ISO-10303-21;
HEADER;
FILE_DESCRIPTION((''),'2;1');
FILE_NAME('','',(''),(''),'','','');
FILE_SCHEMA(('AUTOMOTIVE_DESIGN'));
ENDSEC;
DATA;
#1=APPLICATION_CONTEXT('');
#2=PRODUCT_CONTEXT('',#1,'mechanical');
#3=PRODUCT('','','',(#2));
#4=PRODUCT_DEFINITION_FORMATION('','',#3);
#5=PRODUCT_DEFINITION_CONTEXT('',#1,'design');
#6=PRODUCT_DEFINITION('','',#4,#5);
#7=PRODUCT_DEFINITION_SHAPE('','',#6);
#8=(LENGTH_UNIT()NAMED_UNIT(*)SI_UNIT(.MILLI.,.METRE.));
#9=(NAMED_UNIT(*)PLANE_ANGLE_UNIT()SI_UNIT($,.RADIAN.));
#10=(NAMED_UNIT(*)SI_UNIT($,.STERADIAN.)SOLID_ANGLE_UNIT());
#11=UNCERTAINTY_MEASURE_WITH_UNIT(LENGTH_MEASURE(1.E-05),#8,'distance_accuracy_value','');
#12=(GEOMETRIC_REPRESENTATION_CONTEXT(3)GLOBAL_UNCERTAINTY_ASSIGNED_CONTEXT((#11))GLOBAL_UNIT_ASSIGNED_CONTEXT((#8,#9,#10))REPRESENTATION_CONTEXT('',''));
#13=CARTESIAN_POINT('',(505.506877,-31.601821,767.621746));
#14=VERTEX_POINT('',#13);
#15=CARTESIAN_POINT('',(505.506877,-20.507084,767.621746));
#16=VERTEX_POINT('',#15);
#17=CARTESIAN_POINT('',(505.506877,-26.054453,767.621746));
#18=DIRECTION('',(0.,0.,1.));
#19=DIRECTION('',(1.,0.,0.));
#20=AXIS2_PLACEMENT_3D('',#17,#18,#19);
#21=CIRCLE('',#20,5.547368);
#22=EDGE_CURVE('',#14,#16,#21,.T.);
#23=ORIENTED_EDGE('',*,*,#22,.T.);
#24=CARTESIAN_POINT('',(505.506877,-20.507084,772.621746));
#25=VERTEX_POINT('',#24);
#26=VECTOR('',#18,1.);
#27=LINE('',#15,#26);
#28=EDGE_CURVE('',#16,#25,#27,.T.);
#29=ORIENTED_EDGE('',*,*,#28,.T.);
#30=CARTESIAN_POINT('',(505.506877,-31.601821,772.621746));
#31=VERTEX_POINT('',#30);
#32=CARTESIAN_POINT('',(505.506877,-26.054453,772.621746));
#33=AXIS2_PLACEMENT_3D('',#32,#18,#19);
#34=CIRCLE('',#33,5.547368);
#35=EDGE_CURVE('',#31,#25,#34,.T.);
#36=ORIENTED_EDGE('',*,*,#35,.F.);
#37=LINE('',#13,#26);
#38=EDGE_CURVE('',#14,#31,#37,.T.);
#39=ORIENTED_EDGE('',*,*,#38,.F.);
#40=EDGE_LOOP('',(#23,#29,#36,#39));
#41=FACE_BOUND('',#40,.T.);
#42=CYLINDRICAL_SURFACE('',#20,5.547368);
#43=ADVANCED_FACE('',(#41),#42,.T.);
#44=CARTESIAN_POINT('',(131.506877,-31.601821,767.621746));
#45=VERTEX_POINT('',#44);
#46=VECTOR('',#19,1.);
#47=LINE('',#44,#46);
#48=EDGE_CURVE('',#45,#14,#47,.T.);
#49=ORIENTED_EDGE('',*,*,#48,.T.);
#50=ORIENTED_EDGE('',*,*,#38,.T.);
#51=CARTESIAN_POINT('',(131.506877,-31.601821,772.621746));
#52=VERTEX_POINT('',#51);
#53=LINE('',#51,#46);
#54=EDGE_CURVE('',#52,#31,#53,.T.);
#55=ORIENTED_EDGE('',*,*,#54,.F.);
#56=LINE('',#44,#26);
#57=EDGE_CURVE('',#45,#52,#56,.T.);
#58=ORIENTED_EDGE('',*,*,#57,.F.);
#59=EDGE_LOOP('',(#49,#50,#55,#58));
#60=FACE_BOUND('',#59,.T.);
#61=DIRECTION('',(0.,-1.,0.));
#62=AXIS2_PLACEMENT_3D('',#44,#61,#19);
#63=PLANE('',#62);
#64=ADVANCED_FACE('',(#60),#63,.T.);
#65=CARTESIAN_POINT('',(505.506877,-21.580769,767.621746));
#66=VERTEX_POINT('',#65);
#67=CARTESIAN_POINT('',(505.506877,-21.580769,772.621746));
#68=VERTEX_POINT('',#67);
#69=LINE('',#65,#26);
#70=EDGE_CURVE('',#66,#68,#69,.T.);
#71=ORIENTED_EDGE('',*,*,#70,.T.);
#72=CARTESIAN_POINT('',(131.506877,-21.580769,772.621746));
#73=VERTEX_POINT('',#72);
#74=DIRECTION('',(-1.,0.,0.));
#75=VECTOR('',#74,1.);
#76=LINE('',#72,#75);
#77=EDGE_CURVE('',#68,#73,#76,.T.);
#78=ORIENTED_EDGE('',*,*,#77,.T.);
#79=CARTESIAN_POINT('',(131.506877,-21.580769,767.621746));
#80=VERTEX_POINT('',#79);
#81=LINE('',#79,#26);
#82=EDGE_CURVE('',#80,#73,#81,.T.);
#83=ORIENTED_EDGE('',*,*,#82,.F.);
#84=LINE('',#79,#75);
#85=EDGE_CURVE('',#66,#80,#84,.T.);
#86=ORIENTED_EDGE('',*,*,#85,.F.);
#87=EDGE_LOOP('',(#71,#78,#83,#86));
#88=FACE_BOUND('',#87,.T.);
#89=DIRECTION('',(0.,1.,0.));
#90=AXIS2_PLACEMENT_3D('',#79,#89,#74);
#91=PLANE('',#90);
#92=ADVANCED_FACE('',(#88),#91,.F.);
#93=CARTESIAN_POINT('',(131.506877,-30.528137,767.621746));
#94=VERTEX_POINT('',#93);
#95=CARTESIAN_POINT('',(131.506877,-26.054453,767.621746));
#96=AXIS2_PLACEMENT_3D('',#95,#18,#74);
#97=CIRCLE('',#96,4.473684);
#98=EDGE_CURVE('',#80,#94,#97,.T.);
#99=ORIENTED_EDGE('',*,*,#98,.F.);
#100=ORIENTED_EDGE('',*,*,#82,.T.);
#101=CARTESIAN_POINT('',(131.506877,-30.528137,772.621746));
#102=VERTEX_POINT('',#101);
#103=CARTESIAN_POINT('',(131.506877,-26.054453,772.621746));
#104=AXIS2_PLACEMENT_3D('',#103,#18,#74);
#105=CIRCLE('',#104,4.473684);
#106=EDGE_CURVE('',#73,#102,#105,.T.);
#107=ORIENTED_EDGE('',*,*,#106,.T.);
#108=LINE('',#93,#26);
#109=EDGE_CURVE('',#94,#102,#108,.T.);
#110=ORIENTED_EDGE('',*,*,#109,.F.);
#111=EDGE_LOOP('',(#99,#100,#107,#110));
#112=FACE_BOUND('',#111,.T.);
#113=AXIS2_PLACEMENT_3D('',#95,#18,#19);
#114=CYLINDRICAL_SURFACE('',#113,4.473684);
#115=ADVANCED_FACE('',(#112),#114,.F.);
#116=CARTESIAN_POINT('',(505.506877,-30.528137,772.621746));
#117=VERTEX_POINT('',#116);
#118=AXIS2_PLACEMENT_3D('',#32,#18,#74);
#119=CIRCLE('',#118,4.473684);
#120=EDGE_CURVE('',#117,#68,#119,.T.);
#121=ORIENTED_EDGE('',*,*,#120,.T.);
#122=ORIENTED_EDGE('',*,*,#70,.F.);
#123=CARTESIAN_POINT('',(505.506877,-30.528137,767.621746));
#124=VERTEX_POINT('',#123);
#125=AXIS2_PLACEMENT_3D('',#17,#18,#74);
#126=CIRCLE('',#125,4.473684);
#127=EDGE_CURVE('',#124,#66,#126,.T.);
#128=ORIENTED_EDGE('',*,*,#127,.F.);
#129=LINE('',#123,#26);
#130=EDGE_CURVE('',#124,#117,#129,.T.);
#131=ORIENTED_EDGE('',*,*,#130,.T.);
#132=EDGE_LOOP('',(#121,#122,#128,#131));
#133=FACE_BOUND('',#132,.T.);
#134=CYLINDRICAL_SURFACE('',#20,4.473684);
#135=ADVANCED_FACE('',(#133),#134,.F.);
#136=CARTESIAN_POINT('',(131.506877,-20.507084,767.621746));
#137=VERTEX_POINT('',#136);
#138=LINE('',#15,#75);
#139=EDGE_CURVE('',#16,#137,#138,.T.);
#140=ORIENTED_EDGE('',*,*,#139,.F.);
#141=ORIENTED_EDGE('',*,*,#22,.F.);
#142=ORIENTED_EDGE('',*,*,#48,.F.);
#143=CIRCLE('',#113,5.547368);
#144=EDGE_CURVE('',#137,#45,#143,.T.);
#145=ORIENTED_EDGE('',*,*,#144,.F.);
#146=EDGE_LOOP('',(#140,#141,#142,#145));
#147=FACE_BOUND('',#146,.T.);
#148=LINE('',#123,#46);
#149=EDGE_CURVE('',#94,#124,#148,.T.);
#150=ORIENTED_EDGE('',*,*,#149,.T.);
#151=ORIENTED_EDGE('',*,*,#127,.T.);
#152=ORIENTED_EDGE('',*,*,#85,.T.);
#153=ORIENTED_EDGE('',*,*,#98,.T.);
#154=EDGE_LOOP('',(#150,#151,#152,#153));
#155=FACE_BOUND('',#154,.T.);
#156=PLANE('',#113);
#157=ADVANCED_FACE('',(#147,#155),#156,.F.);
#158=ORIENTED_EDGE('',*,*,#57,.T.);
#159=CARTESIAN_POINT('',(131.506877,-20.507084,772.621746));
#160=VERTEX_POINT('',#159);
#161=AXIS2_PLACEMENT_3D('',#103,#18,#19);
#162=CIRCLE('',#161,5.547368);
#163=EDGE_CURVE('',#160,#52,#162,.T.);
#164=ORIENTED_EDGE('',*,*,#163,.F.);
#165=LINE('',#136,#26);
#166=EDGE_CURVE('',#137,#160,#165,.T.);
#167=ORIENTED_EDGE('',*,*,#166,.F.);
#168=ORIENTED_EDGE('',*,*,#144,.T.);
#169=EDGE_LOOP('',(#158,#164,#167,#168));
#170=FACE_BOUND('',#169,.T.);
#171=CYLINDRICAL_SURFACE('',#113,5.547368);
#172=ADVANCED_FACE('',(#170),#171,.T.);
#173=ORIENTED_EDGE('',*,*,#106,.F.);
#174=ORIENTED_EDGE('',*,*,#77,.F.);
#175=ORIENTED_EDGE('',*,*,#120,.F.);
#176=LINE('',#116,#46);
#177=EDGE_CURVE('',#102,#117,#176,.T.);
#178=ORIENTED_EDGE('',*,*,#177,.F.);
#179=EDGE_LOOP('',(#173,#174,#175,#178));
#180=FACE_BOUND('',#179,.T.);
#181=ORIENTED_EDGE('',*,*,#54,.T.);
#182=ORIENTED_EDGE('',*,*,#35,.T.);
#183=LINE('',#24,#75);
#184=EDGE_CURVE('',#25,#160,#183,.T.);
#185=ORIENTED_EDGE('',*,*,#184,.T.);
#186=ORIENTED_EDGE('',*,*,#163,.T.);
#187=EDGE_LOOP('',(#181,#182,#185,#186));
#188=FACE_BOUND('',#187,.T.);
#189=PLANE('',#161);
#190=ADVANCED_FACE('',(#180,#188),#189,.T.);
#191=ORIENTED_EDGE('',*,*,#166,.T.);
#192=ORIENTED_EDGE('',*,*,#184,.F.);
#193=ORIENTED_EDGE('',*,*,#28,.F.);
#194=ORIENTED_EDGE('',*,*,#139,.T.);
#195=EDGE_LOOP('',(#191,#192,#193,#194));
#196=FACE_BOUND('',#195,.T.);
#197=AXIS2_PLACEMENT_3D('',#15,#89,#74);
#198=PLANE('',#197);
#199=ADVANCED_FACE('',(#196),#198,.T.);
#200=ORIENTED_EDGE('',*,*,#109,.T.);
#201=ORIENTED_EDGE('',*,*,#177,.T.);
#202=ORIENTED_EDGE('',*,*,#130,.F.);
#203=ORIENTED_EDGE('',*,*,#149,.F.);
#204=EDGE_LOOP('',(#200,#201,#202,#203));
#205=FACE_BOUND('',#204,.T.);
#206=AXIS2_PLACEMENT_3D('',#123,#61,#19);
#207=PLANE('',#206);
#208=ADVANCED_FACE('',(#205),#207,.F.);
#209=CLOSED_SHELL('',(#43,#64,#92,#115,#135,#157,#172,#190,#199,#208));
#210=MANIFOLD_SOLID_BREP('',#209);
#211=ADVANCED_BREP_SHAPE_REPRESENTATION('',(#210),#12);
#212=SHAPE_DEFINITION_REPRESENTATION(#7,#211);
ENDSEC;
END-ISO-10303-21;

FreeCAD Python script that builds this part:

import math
import FreeCAD as App
import Part
import Sketcher

V = App.Vector
Q = App.Units.Quantity

doc = App.newDocument("Part")
body = doc.addObject("PartDesign::Body", "Body")

# Sketch on XY plane
sketch1 = doc.addObject("Sketcher::SketchObject", "Sketch")
body.addObject(sketch1)
sketch1.AttachmentSupport = (doc.XY_Plane, [""])
sketch1.MapMode = "FlatFace"
sketch1.AttachmentOffset = App.Placement(V(0, 0, 772.621746), App.Rotation())
sketch1.addGeometry([
    Part.LineSegment(V(131.506877, -31.601821, 0), V(505.506877, -31.601821, 0)),  # 0
    Part.ArcOfCircle(Part.Circle(V(505.506877, -26.054453, 0), V(0, 0, 1), 5.547368), math.radians(-90), math.radians(90)),  # 1
    Part.LineSegment(V(505.506877, -20.507084, 0), V(131.506877, -20.507084, 0)),  # 2
    Part.ArcOfCircle(Part.Circle(V(131.506877, -26.054453, 0), V(0, 0, 1), 5.547368), math.radians(90), math.radians(270)),  # 3
    Part.ArcOfCircle(Part.Circle(V(505.506877, -26.054453, 0), V(0, 0, 1), 4.473684), math.radians(-90), math.radians(90)),  # 4
    Part.LineSegment(V(505.506877, -30.528137, 0), V(131.506877, -30.528137, 0)),  # 5
    Part.ArcOfCircle(Part.Circle(V(131.506877, -26.054453, 0), V(0, 0, 1), 4.473684), math.radians(90), math.radians(270)),  # 6
    Part.LineSegment(V(131.506877, -21.580769, 0), V(505.506877, -21.580769, 0)),  # 7
], False)
sketch1.addConstraint([
    Sketcher.Constraint("Tangent", 0, 2, 1, 1),
    Sketcher.Constraint("Tangent", 1, 2, 2, 1),
    Sketcher.Constraint("Tangent", 2, 2, 3, 1),
    Sketcher.Constraint("Tangent", 3, 2, 0, 1),
    Sketcher.Constraint("Tangent", 4, 1, 5, 1),
    Sketcher.Constraint("Tangent", 5, 2, 6, 2),
    Sketcher.Constraint("Tangent", 6, 1, 7, 1),
    Sketcher.Constraint("Tangent", 7, 2, 4, 2),
    Sketcher.Constraint("Horizontal", 0),
    Sketcher.Constraint("Horizontal", 2),
    Sketcher.Constraint("Horizontal", 5),
    Sketcher.Constraint("Horizontal", 7),
    Sketcher.Constraint("Coincident", 4, 3, 1, 3),
    Sketcher.Constraint("Vertical", 6, 3, 2, 2),
    Sketcher.Constraint("DistanceX", 0, 1, 0, 2, Q("374 mm")),
    Sketcher.Constraint("Radius", 1, Q("5.547368 mm")),
    Sketcher.Constraint("Radius", 4, Q("4.473684 mm")),
    Sketcher.Constraint("DistanceY", 0, 2, -1, 1, Q("31.601821 mm")),
    Sketcher.Constraint("DistanceX", -1, 1, 1, 3, Q("505.506877 mm")),
])
pad1 = doc.addObject("PartDesign::Pad", "Pad")
body.addObject(pad1)
pad1.Profile = sketch1
pad1.Length = 5
pad1.Reversed = True

doc.recompute()
